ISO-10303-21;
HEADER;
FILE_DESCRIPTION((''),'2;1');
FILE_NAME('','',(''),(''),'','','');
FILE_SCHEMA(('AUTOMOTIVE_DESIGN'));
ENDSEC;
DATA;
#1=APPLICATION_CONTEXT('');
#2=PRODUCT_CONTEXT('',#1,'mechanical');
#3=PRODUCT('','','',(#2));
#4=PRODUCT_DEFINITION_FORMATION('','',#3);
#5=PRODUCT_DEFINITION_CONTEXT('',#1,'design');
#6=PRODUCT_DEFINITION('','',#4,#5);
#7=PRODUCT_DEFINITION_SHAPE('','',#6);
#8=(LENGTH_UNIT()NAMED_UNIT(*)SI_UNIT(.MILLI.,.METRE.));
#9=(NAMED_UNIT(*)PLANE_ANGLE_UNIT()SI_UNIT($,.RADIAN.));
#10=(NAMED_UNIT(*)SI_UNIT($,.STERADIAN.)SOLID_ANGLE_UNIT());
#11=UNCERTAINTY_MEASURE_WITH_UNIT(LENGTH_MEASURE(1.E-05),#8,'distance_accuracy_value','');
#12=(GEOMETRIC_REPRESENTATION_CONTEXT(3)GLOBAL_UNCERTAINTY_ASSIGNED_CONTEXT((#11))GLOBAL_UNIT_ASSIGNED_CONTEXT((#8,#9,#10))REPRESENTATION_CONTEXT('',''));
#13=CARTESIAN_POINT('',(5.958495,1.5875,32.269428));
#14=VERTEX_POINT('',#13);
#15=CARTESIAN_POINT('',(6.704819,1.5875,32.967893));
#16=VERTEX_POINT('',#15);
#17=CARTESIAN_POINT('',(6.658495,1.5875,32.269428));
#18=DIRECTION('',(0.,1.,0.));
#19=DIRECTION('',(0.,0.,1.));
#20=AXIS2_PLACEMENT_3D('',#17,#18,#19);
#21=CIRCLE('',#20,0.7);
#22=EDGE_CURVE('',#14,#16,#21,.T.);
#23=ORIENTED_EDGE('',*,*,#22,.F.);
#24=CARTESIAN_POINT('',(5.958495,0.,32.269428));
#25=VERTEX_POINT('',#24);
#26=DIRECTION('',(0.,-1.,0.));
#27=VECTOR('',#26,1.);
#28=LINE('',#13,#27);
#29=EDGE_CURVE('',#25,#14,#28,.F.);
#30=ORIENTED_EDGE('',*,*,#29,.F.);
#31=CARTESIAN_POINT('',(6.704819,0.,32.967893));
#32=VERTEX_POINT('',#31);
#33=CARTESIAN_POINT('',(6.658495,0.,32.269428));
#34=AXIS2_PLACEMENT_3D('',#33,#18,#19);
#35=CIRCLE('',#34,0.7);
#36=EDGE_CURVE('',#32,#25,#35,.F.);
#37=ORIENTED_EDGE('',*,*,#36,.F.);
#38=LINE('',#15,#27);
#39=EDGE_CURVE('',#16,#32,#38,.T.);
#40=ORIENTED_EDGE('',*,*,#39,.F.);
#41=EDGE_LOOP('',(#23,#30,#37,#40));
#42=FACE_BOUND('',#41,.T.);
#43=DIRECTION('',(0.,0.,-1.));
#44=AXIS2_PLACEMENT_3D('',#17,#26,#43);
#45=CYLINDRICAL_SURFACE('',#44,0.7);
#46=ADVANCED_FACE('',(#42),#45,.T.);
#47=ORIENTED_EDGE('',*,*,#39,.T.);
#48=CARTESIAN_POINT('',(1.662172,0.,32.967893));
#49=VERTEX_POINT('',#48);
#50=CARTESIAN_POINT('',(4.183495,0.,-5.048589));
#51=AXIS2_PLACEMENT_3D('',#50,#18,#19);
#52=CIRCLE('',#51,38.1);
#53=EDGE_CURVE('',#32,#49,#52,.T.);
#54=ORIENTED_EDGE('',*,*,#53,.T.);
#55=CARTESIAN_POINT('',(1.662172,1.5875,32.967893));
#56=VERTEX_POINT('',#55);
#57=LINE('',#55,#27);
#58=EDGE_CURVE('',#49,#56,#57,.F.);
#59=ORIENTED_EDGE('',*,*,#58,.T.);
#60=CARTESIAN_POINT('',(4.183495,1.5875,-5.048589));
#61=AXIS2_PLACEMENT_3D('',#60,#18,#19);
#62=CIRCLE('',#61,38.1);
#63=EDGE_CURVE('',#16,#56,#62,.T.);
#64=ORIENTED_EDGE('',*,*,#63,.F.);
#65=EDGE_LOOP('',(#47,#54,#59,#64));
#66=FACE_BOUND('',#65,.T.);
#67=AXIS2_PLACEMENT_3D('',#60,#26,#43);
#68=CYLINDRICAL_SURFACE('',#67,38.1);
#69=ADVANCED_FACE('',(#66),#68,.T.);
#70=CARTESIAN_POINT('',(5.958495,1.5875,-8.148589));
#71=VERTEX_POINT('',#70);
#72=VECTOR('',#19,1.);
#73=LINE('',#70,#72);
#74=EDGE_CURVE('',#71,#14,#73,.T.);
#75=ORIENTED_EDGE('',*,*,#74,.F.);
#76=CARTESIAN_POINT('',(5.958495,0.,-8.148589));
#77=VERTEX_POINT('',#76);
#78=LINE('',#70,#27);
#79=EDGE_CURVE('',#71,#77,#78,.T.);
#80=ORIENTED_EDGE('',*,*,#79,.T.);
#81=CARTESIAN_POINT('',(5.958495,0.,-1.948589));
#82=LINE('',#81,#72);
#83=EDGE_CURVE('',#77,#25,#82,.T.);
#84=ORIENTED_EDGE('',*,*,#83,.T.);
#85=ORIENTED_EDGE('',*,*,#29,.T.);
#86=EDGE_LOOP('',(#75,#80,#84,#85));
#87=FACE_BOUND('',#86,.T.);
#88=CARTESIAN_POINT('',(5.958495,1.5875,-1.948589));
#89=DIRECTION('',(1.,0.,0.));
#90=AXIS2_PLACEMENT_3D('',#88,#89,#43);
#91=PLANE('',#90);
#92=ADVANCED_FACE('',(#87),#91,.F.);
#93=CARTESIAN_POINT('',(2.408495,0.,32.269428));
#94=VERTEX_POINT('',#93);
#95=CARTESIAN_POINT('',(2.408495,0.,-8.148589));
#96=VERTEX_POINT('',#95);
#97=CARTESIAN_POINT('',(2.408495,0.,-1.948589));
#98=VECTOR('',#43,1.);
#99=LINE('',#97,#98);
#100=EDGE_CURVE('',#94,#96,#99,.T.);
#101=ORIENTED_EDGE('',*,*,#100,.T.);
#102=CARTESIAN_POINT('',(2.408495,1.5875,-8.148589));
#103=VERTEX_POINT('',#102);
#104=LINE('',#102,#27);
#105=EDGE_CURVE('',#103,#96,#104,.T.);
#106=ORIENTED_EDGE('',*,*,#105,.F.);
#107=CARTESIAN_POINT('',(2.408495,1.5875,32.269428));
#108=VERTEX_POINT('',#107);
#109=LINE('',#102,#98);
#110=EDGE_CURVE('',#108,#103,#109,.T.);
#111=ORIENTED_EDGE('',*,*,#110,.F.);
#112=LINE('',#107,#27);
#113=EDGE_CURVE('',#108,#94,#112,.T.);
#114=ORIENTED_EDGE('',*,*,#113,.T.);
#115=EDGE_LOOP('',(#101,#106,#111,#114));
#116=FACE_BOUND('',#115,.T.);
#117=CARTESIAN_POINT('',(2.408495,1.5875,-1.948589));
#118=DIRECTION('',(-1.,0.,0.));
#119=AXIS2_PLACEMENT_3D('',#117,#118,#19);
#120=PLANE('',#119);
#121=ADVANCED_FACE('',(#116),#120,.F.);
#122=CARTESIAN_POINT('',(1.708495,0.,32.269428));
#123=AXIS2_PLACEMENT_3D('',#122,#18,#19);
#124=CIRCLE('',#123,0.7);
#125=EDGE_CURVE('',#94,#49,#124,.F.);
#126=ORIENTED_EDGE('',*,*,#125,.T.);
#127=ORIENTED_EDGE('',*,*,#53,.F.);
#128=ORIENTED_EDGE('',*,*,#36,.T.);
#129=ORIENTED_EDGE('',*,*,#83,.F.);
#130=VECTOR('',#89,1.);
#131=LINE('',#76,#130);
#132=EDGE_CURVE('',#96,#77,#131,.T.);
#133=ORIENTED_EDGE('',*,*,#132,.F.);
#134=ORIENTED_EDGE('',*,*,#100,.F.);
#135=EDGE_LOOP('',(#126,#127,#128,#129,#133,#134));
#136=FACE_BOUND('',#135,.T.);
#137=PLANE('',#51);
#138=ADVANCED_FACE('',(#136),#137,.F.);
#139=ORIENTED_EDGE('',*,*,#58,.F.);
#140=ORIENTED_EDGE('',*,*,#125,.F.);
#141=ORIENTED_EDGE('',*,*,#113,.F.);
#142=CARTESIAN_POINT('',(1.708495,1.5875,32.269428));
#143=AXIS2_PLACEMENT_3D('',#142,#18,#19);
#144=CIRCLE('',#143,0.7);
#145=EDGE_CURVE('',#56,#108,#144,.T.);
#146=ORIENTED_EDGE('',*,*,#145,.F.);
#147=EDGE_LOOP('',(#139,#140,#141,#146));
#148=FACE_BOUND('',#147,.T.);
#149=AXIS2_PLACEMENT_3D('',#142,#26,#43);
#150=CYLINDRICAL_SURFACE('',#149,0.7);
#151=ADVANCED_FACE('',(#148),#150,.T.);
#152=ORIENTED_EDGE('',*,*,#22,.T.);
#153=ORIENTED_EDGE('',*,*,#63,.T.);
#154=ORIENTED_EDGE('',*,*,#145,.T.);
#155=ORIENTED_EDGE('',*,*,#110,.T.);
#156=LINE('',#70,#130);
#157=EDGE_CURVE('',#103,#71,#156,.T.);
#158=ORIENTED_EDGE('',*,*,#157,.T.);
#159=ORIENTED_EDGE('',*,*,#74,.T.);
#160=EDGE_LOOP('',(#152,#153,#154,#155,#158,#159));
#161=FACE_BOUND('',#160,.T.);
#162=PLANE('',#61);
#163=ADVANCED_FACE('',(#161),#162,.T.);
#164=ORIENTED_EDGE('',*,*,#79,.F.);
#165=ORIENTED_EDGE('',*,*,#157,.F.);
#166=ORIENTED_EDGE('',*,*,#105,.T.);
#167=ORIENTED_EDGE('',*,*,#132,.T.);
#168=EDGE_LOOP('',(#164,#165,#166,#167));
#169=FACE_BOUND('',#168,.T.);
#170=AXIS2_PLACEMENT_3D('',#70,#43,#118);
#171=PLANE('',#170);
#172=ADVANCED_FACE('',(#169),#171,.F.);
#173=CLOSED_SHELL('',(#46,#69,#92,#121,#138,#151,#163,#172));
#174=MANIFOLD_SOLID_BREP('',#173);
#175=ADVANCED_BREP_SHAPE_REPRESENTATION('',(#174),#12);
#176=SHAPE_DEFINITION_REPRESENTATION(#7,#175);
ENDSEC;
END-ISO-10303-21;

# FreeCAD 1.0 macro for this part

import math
import FreeCAD as App
import Part
import Sketcher
from FreeCAD import Vector
Q = App.Units.Quantity


def edges_at(feature, points):
    """Names of the edges that pass closest to the given points."""
    edges = feature.Shape.Edges
    near = lambda p: min(range(len(edges)), key=lambda i: edges[i].distToShape(Part.Vertex(*p))[0])
    return sorted({f"Edge{near(p) + 1}" for p in points})

doc = App.newDocument("Part")
body = doc.addObject("PartDesign::Body", "Body")

# Sketch on XZ plane
sketch1 = body.newObject("Sketcher::SketchObject", "Sketch")
sketch1.AttachmentSupport = (doc.getObject("XZ_Plane"), [""])
sketch1.MapMode = "FlatFace"
sketch1.addGeometry(Part.ArcOfCircle(Part.Circle(Vector(4.2, -5, 0), Vector(0, 0, 1), 38.1), math.radians(93), math.radians(447)), False)
sketch1.addGeometry(Part.LineSegment(Vector(2.4, 33, 0), Vector(2.4, -8.1, 0)), False)
sketch1.addGeometry(Part.LineSegment(Vector(2.4, -8.1, 0), Vector(6, -8.1, 0)), False)
sketch1.addGeometry(Part.LineSegment(Vector(6, -8.1, 0), Vector(6, 33, 0)), False)
sketch1.addConstraint(Sketcher.Constraint("Coincident", 0, 1, 1, 1))
sketch1.addConstraint(Sketcher.Constraint("Coincident", 1, 2, 2, 1))
sketch1.addConstraint(Sketcher.Constraint("Coincident", 2, 2, 3, 1))
sketch1.addConstraint(Sketcher.Constraint("Coincident", 3, 2, 0, 2))
sketch1.addConstraint(Sketcher.Constraint("Vertical", 1))
sketch1.addConstraint(Sketcher.Constraint("Horizontal", 2))
sketch1.addConstraint(Sketcher.Constraint("Vertical", 3))
sketch1.addConstraint(Sketcher.Constraint("Horizontal", 0, 1, 3, 2))
sketch1.addConstraint(Sketcher.Constraint("Radius", 0, Q("1.5 in")))
sketch1.addConstraint(Sketcher.Constraint("DistanceX", 2, 1, 2, 2, Q("3.55 mm")))
sketch1.addConstraint(Sketcher.Constraint("DistanceY", 1, 2, 1, 1, Q("41.158631 mm")))
sketch1.addConstraint(Sketcher.Constraint("DistanceY", 0, 3, -1, 1, Q("5.048589 mm")))
sketch1.addConstraint(Sketcher.Constraint("DistanceX", -1, 1, 0, 3, Q("4.183495 mm")))
pad1 = body.newObject("PartDesign::Pad", "Pad")
pad1.Profile = sketch1
pad1.Length = Q("0.0625 in")
pad1.Reversed = True
doc.recompute()

fillet = body.newObject("PartDesign::Fillet", "Fillet")
fillet.Base = (pad1, edges_at(pad1, [(2.408, 0.794, 33.01), (5.958, 0.794, 33.01)]))
fillet.Radius = 0.7

doc.recompute()
